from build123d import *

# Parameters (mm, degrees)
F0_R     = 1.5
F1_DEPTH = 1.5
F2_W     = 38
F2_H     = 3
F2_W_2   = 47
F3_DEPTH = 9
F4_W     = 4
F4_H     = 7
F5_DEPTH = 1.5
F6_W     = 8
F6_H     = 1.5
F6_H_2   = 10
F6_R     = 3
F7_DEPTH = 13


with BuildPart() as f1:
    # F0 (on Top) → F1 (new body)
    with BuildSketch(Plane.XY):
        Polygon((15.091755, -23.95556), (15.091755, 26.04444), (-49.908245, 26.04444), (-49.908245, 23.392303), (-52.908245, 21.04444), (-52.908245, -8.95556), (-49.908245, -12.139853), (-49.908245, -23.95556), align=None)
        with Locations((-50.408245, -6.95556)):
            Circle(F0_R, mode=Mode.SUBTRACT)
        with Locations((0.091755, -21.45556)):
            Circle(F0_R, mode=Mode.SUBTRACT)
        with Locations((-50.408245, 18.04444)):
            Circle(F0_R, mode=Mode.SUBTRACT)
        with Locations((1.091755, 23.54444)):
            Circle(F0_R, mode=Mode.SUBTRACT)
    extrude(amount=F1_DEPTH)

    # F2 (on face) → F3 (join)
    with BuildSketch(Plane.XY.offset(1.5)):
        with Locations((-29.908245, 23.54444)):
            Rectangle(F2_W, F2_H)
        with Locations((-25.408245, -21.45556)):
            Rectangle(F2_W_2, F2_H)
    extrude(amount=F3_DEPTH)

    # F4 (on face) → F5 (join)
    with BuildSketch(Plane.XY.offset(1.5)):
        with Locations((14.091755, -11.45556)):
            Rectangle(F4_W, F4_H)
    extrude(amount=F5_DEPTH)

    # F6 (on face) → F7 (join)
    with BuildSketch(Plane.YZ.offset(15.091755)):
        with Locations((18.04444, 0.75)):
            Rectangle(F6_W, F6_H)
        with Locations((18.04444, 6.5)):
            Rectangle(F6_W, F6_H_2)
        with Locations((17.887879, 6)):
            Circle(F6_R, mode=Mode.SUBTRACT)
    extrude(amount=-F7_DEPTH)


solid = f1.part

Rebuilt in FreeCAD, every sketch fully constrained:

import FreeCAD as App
import Part
import Sketcher
from FreeCAD import Vector


def add_polygon(sketch, points):
    """Adds a closed chain of lines whose ends are joined by coincident constraints."""
    first, n = sketch.GeometryCount, len(points)
    for a, b in zip(points, points[1:] + points[:1]):
        sketch.addGeometry(Part.LineSegment(App.Vector(*a, 0), App.Vector(*b, 0)), False)
    for i in range(n):
        sketch.addConstraint(Sketcher.Constraint("Coincident", first + i, 2, first + (i + 1) % n, 1))

doc = App.newDocument("Part")
body = doc.addObject("PartDesign::Body", "Body")

# Sketch on XY plane
sketch1 = body.newObject("Sketcher::SketchObject", "Sketch")
sketch1.AttachmentSupport = (doc.getObject("XY_Plane"), [""])
sketch1.MapMode = "FlatFace"
add_polygon(sketch1, [(15.1, -24), (15.1, 26), (-49.9, 26), (-49.9, 23.4), (-52.9, 21), (-52.9, -9), (-49.9, -12.1), (-49.9, -24)])  # lines 0-7
sketch1.addGeometry(Part.Circle(Vector(-50.4, -7, 0), Vector(0, 0, 1), 1.5), False)  # 8
sketch1.addGeometry(Part.Circle(Vector(0.1, -21.5, 0), Vector(0, 0, 1), 1.5), False)  # 9
sketch1.addGeometry(Part.Circle(Vector(-50.4, 18, 0), Vector(0, 0, 1), 1.5), False)  # 10
sketch1.addGeometry(Part.Circle(Vector(1.1, 23.5, 0), Vector(0, 0, 1), 1.5), False)  # 11
sketch1.addConstraint([
    Sketcher.Constraint("Vertical", 0),
    Sketcher.Constraint("Horizontal", 1),
    Sketcher.Constraint("Vertical", 2),
    Sketcher.Constraint("Vertical", 4),
    Sketcher.Constraint("Vertical", 6),
    Sketcher.Constraint("Horizontal", 7),
    Sketcher.Constraint("Equal", 8, 9),
    Sketcher.Constraint("Equal", 9, 10),
    Sketcher.Constraint("Equal", 10, 11),
    Sketcher.Constraint("Vertical", 8, 3, 10, 3),
    Sketcher.Constraint("Vertical", 2, 2, 5, 2),
    Sketcher.Constraint("Diameter", 8, 3.0),
    Sketcher.Constraint("DistanceX", 1, 2, 1, 1, 65.0),
    Sketcher.Constraint("DistanceY", 0, 1, 0, 2, 50.0),
    Sketcher.Constraint("DistanceY", 4, 2, 4, 1, 30.0),
    Sketcher.Constraint("DistanceY", 8, 3, 10, 3, 25.0),
    Sketcher.Constraint("DistanceX", 9, 3, 11, 3, 1.0),
    Sketcher.Constraint("DistanceY", 9, 3, 11, 3, 45.0),
    Sketcher.Constraint("DistanceX", 11, 3, 0, 2, 14.0),
    Sketcher.Constraint("DistanceY", 10, 3, 0, 2, 8.0),
    Sketcher.Constraint("DistanceX", 3, 2, 2, 2, 3.0),
    Sketcher.Constraint("DistanceY", 10, 3, 3, 2, 3.0),
    Sketcher.Constraint("DistanceX", 8, 3, 9, 3, 50.5),
    Sketcher.Constraint("DistanceY", 9, 3, 8, 3, 14.5),
    Sketcher.Constraint("DistanceY", 2, 2, 2, 1, 2.652137),
    Sketcher.Constraint("DistanceY", 6, 2, 6, 1, 11.815707),
    Sketcher.Constraint("DistanceY", 8, 3, -1, 1, 6.95556),
    Sketcher.Constraint("DistanceX", 8, 3, -1, 1, 50.408245),
])
pad1 = body.newObject("PartDesign::Pad", "Pad")
pad1.Profile = sketch1
pad1.Length = 1.5

# Sketch on XY plane
sketch2 = body.newObject("Sketcher::SketchObject", "Sketch001")
sketch2.AttachmentSupport = (doc.getObject("XY_Plane"), [""])
sketch2.MapMode = "FlatFace"
sketch2.AttachmentOffset = App.Placement(Vector(0, 0, 1.5), App.Rotation())
add_polygon(sketch2, [(-48.9, 25), (-48.9, 22), (-10.9, 22), (-10.9, 25)])  # lines 0-3
add_polygon(sketch2, [(-48.9, -20), (-48.9, -23), (-1.9, -23), (-1.9, -20)])  # lines 4-7
sketch2.addConstraint([
    Sketcher.Constraint("Vertical", 0),
    Sketcher.Constraint("Horizontal", 1),
    Sketcher.Constraint("Vertical", 2),
    Sketcher.Constraint("Horizontal", 3),
    Sketcher.Constraint("Vertical", 4),
    Sketcher.Constraint("Horizontal", 5),
    Sketcher.Constraint("Vertical", 6),
    Sketcher.Constraint("Horizontal", 7),
    Sketcher.Constraint("Vertical", 3, 2, 4, 2),
    Sketcher.Constraint("Equal", 2, 4),
    Sketcher.Constraint("DistanceX", 1, 1, 1, 2, 38.0),
    Sketcher.Constraint("DistanceX", 5, 1, 5, 2, 47.0),
    Sketcher.Constraint("DistanceY", 0, 2, 0, 1, 3.0),
    Sketcher.Constraint("DistanceY", 4, 2, 0, 2, 45.0),
    Sketcher.Constraint("DistanceY", -1, 1, 0, 2, 22.04444),
    Sketcher.Constraint("DistanceX", 0, 2, -1, 1, 48.908245),
])
pad2 = body.newObject("PartDesign::Pad", "Pad001")
pad2.Profile = sketch2
pad2.Length = 9

# Sketch on XY plane
sketch3 = body.newObject("Sketcher::SketchObject", "Sketch002")
sketch3.AttachmentSupport = (doc.getObject("XY_Plane"), [""])
sketch3.MapMode = "FlatFace"
sketch3.AttachmentOffset = App.Placement(Vector(0, 0, 1.5), App.Rotation())
add_polygon(sketch3, [(12.1, -8), (12.1, -15), (16.1, -15), (16.1, -8)])  # lines 0-3
sketch3.addConstraint([
    Sketcher.Constraint("Vertical", 0),
    Sketcher.Constraint("Horizontal", 1),
    Sketcher.Constraint("Vertical", 2),
    Sketcher.Constraint("Horizontal", 3),
    Sketcher.Constraint("DistanceX", 1, 1, 1, 2, 4.0),
    Sketcher.Constraint("DistanceY", 0, 2, 0, 1, 7.0),
    Sketcher.Constraint("DistanceY", 0, 2, -1, 1, 14.95556),
    Sketcher.Constraint("DistanceX", -1, 1, 0, 2, 12.091755),
])
pad3 = body.newObject("PartDesign::Pad", "Pad002")
pad3.Profile = sketch3
pad3.Length = 1.5

# Sketch on YZ plane
sketch4 = body.newObject("Sketcher::SketchObject", "Sketch003")
sketch4.AttachmentSupport = (doc.getObject("YZ_Plane"), [""])
sketch4.MapMode = "FlatFace"
sketch4.AttachmentOffset = App.Placement(Vector(0, 0, 15.091755), App.Rotation())
add_polygon(sketch4, [(14, 0), (22, 0), (22, 11.5), (14, 11.5)])  # lines 0-3
sketch4.addGeometry(Part.Circle(Vector(17.9, 6, 0), Vector(0, 0, 1), 3), False)  # 4
sketch4.addConstraint([
    Sketcher.Constraint("Horizontal", 0),
    Sketcher.Constraint("Vertical", 1),
    Sketcher.Constraint("Horizontal", 2),
    Sketcher.Constraint("Vertical", 3),
    Sketcher.Constraint("PointOnObject", 0, 2, -1),
    Sketcher.Constraint("Diameter", 4, 6.0),
    Sketcher.Constraint("DistanceX", 0, 1, 0, 2, 8.0),
    Sketcher.Constraint("DistanceY", 1, 1, 1, 2, 11.5),
    Sketcher.Constraint("DistanceY", -1, 1, 4, 3, 6.0),
    Sketcher.Constraint("DistanceX", -1, 1, 4, 3, 17.887879),
    Sketcher.Constraint("DistanceX", -1, 1, 0, 2, 22.04444),
])
pad4 = body.newObject("PartDesign::Pad", "Pad003")
pad4.Profile = sketch4
pad4.Length = 13
pad4.Reversed = True

doc.recompute()
